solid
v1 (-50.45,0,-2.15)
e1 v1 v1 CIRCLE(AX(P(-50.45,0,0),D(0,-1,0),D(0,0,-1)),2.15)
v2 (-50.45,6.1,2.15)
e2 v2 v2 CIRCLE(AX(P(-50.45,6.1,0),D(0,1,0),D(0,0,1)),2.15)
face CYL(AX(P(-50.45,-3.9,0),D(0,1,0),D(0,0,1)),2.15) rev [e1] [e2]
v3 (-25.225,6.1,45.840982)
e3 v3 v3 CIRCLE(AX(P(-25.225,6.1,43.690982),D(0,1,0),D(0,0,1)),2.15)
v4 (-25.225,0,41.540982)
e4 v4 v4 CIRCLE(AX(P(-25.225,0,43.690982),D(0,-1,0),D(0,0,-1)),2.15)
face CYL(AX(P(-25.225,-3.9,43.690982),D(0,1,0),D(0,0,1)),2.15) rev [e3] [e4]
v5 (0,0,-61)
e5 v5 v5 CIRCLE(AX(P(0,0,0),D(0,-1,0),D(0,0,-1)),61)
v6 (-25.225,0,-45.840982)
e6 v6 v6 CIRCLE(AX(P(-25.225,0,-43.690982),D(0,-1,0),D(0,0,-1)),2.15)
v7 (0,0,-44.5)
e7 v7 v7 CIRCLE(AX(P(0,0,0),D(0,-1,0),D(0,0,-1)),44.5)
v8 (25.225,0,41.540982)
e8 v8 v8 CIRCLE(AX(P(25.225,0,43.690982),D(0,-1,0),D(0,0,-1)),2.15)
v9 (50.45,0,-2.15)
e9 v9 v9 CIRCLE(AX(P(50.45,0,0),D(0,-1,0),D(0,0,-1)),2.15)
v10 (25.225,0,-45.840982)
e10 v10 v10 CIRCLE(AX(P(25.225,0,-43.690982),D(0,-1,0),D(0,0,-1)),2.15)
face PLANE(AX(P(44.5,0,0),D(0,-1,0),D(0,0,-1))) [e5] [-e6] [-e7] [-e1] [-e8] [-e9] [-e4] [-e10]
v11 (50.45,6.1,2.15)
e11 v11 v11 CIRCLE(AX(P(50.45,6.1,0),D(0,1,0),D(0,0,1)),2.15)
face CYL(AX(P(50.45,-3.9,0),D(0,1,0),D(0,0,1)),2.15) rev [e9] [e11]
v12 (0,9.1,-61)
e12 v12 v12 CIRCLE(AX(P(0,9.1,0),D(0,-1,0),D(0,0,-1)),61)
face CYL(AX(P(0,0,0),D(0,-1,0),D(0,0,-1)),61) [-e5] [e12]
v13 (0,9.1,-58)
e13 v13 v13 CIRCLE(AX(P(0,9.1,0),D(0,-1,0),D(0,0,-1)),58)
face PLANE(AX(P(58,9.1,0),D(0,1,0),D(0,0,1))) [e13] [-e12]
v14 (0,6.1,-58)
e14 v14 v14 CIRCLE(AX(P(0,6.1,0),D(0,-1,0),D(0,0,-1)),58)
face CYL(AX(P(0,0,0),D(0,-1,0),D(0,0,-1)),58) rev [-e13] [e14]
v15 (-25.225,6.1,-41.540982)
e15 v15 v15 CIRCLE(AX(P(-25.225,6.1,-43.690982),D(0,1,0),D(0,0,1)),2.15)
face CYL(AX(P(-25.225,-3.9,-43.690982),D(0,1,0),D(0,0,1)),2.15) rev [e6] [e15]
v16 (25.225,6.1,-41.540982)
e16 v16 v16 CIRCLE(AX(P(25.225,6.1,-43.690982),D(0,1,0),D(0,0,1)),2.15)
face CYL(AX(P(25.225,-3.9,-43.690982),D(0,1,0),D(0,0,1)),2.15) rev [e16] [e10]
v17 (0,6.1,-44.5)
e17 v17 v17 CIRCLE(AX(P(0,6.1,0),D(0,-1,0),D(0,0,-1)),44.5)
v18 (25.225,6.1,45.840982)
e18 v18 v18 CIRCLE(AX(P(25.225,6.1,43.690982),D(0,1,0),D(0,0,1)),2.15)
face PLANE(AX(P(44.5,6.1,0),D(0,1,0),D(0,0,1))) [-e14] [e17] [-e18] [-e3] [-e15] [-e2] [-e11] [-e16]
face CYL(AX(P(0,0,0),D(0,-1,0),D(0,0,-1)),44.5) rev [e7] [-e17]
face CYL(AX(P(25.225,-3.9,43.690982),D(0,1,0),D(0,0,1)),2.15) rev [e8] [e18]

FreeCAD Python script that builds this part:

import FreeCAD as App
import Part
import Sketcher

V = App.Vector
Q = App.Units.Quantity

doc = App.newDocument("Part")
body = doc.addObject("PartDesign::Body", "Body")

sketch1 = body.newObject("Sketcher::SketchObject", "Sketch")
sketch1.AttachmentSupport = (doc.getObject("XY_Plane"), [""])
sketch1.MapMode = "FlatFace"
sketch1.addGeometry([
    Part.LineSegment(V(44.5, 0, 0), V(61, 0, 0)),
    Part.LineSegment(V(61, 0, 0), V(61, 9.1, 0)),
    Part.LineSegment(V(61, 9.1, 0), V(58, 9.1, 0)),
    Part.LineSegment(V(58, 9.1, 0), V(58, 6.1, 0)),
    Part.LineSegment(V(58, 6.1, 0), V(44.5, 6.1, 0)),
    Part.LineSegment(V(44.5, 6.1, 0), V(44.5, 0, 0)),
], False)
sketch1.addConstraint([
    Sketcher.Constraint("Coincident", 0, 2, 1, 1),
    Sketcher.Constraint("Coincident", 1, 2, 2, 1),
    Sketcher.Constraint("Coincident", 2, 2, 3, 1),
    Sketcher.Constraint("Coincident", 3, 2, 4, 1),
    Sketcher.Constraint("Coincident", 4, 2, 5, 1),
    Sketcher.Constraint("Coincident", 5, 2, 0, 1),
    Sketcher.Constraint("Horizontal", 0),
    Sketcher.Constraint("Vertical", 1),
    Sketcher.Constraint("Horizontal", 2),
    Sketcher.Constraint("Vertical", 3),
    Sketcher.Constraint("Horizontal", 4),
    Sketcher.Constraint("Vertical", 5),
    Sketcher.Constraint("PointOnObject", 0, 2, -1),
    Sketcher.Constraint("Equal", 2, 3),
    Sketcher.Constraint("DistanceX", 2, 2, 2, 1, Q("3 mm")),
    Sketcher.Constraint("DistanceX", 0, 1, 0, 2, Q("16.5 mm")),
    Sketcher.Constraint("DistanceY", 1, 1, 1, 2, Q("9.1 mm")),
    Sketcher.Constraint("DistanceX", -1, 1, 0, 2, Q("61 mm")),
])
revolution = body.newObject("PartDesign::Revolution", "Revolution")
revolution.Profile = sketch1
revolution.ReferenceAxis = (sketch1, ["V_Axis"])
revolution.Angle = 360

sketch2 = body.newObject("Sketcher::SketchObject", "Sketch001")
sketch2.AttachmentSupport = (doc.getObject("XZ_Plane"), [""])
sketch2.MapMode = "FlatFace"
sketch2.AttachmentOffset = App.Placement(V(0, 0, -6.1), App.Rotation())
sketch2.addGeometry([
    Part.Circle(V(-50.5, 0, 0), V(0, 0, 1), 2.1),
    Part.Circle(V(-25.2, -43.7, 0), V(0, 0, 1), 2.1),
    Part.Circle(V(25.2, -43.7, 0), V(0, 0, 1), 2.1),
    Part.Circle(V(50.5, 0, 0), V(0, 0, 1), 2.1),
    Part.Circle(V(25.2, 43.7, 0), V(0, 0, 1), 2.1),
    Part.Circle(V(-25.2, 43.7, 0), V(0, 0, 1), 2.1),
], False)
sketch2.addConstraint([
    Sketcher.Constraint("Equal", 0, 1),
    Sketcher.Constraint("Equal", 1, 2),
    Sketcher.Constraint("Equal", 2, 3),
    Sketcher.Constraint("Equal", 3, 4),
    Sketcher.Constraint("Equal", 4, 5),
    Sketcher.Constraint("Symmetric", 0, 3, 3, 3, -1, 1),
    Sketcher.Constraint("Symmetric", 1, 3, 4, 3, -1, 1),
    Sketcher.Constraint("Symmetric", 2, 3, 5, 3, -1, 1),
    Sketcher.Constraint("Symmetric", 1, 3, 2, 3, -2),
    Sketcher.Constraint("PointOnObject", 0, 3, -1),
    Sketcher.Constraint("Diameter", 0, Q("4.3 mm")),
    Sketcher.Constraint("DistanceX", 0, 3, 3, 3, Q("100.9 mm")),
    Sketcher.Constraint("DistanceX", 1, 3, 2, 3, Q("50.45 mm")),
    Sketcher.Constraint("DistanceY", 1, 3, -1, 1, Q("43.690982 mm")),
])
pocket1 = body.newObject("PartDesign::Pocket", "Pocket")
pocket1.Profile = sketch2
pocket1.Length = 10
pocket1.Reversed = True

doc.recompute()
